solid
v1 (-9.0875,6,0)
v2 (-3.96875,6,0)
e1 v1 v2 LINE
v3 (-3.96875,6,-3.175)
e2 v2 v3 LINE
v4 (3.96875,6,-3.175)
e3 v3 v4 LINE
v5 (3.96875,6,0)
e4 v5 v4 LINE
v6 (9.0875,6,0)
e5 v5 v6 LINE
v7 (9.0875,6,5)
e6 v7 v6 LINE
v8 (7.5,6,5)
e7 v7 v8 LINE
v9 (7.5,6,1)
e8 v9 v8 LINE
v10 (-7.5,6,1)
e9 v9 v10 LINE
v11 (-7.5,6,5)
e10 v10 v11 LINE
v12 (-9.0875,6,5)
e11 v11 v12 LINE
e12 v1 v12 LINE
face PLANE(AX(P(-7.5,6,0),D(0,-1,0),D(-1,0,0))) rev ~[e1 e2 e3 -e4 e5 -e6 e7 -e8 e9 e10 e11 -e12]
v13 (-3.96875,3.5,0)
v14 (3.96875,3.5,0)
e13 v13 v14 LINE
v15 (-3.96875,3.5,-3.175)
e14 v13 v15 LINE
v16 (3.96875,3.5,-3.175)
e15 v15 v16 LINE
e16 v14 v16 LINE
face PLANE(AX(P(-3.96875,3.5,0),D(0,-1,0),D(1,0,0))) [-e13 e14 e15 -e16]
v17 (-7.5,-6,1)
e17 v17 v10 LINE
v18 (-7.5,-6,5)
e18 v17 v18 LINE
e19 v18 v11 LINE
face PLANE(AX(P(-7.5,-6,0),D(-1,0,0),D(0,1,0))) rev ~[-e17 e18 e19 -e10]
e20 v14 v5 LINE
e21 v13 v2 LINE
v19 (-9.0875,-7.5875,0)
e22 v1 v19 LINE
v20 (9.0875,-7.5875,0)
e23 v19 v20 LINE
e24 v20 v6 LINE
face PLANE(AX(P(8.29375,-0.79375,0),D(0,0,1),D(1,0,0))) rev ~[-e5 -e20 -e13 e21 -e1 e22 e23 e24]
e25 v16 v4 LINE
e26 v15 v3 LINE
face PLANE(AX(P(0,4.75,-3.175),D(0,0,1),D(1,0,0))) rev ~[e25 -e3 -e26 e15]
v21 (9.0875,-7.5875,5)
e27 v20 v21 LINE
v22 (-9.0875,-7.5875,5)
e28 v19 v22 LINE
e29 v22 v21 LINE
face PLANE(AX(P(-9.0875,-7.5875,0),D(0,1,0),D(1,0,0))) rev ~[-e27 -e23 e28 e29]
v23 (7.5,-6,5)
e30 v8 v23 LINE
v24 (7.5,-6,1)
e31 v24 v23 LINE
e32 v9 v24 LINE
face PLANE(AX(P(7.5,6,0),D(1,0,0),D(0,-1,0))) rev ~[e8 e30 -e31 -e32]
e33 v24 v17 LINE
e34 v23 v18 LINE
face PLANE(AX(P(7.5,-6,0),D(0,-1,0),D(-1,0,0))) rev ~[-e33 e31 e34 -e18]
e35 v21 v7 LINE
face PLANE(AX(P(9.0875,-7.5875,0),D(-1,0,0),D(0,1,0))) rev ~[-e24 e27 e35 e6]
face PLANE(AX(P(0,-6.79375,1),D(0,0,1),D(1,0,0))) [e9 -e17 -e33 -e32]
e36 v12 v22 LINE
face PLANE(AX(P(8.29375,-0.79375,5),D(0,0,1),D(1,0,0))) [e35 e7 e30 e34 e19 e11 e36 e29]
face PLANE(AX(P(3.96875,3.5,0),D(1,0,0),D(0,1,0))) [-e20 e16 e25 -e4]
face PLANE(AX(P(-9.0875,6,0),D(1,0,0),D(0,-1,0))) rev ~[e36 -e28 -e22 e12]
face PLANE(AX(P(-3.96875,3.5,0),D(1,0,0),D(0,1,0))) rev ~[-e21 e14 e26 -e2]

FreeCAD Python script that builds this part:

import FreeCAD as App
import Part
import Sketcher

V = App.Vector
Q = App.Units.Quantity


def add_polygon(sketch, points):
    """Adds a closed chain of lines whose ends are joined by coincident constraints."""
    first, n = sketch.GeometryCount, len(points)
    for a, b in zip(points, points[1:] + points[:1]):
        sketch.addGeometry(Part.LineSegment(App.Vector(*a, 0), App.Vector(*b, 0)), False)
    for i in range(n):
        sketch.addConstraint(Sketcher.Constraint("Coincident", first + i, 2, first + (i + 1) % n, 1))

doc = App.newDocument("Part")
body = doc.addObject("PartDesign::Body", "Body")

sketch1 = doc.addObject("Sketcher::SketchObject", "Sketch")
body.addObject(sketch1)
sketch1.AttachmentSupport = (doc.XY_Plane, [""])
sketch1.MapMode = "FlatFace"
add_polygon(sketch1, [(7.5, 6), (7.5, -6), (-7.5, -6), (-7.5, 6), (-9.1, 6), (-9.1, -7.6), (9.1, -7.6), (9.1, 6)])
sketch1.addConstraint(Sketcher.Constraint("Vertical", 0))
sketch1.addConstraint(Sketcher.Constraint("Horizontal", 1))
sketch1.addConstraint(Sketcher.Constraint("Vertical", 2))
sketch1.addConstraint(Sketcher.Constraint("Horizontal", 3))
sketch1.addConstraint(Sketcher.Constraint("Vertical", 4))
sketch1.addConstraint(Sketcher.Constraint("Horizontal", 5))
sketch1.addConstraint(Sketcher.Constraint("Vertical", 6))
sketch1.addConstraint(Sketcher.Constraint("Horizontal", 7))
sketch1.addConstraint(Sketcher.Constraint("Symmetric", 0, 2, 2, 2, -1, 1))
sketch1.addConstraint(Sketcher.Constraint("Symmetric", 3, 2, 6, 2, -2))
sketch1.addConstraint(Sketcher.Constraint("DistanceX", 1, 2, 1, 1, Q("15 mm")))
sketch1.addConstraint(Sketcher.Constraint("DistanceY", 0, 2, 0, 1, Q("12 mm")))
sketch1.addConstraint(Sketcher.Constraint("DistanceX", 5, 1, 5, 2, Q("18.175 mm")))
sketch1.addConstraint(Sketcher.Constraint("DistanceY", 4, 2, 4, 1, Q("13.5875 mm")))
pad1 = doc.addObject("PartDesign::Pad", "Pad")
body.addObject(pad1)
pad1.Profile = sketch1
pad1.Length = 5

sketch2 = doc.addObject("Sketcher::SketchObject", "Sketch001")
body.addObject(sketch2)
sketch2.AttachmentSupport = (doc.XY_Plane, [""])
sketch2.MapMode = "FlatFace"
add_polygon(sketch2, [(-9, 6), (-9, -8), (9, -8), (9, 6)])
sketch2.addConstraint(Sketcher.Constraint("Vertical", 0))
sketch2.addConstraint(Sketcher.Constraint("Horizontal", 1))
sketch2.addConstraint(Sketcher.Constraint("Vertical", 2))
sketch2.addConstraint(Sketcher.Constraint("Horizontal", 3))
sketch2.addConstraint(Sketcher.Constraint("DistanceY", -1, 1, 2, 2, Q("6 mm")))
sketch2.addConstraint(Sketcher.Constraint("DistanceX", 1, 1, 1, 2, Q("18.175 mm")))
sketch2.addConstraint(Sketcher.Constraint("DistanceY", 0, 2, 0, 1, Q("13.5875 mm")))
sketch2.addConstraint(Sketcher.Constraint("DistanceX", 0, 2, -1, 1, Q("9.0875 mm")))
pad2 = doc.addObject("PartDesign::Pad", "Pad001")
body.addObject(pad2)
pad2.Profile = sketch2
pad2.Length = 1

sketch3 = doc.addObject("Sketcher::SketchObject", "Sketch002")
body.addObject(sketch3)
sketch3.AttachmentSupport = (doc.XY_Plane, [""])
sketch3.MapMode = "FlatFace"
add_polygon(sketch3, [(-4, 6), (-4, 3.5), (4, 3.5), (4, 6)])
sketch3.addConstraint(Sketcher.Constraint("Vertical", 0))
sketch3.addConstraint(Sketcher.Constraint("Horizontal", 1))
sketch3.addConstraint(Sketcher.Constraint("Vertical", 2))
sketch3.addConstraint(Sketcher.Constraint("Horizontal", 3))
sketch3.addConstraint(Sketcher.Constraint("DistanceY", 0, 2, 0, 1, Q("2.5 mm")))
sketch3.addConstraint(Sketcher.Constraint("DistanceY", -1, 1, 2, 2, Q("6 mm")))
sketch3.addConstraint(Sketcher.Constraint("DistanceX", 1, 1, 1, 2, Q("7.9375 mm")))
sketch3.addConstraint(Sketcher.Constraint("DistanceX", 0, 2, -1, 1, Q("3.96875 mm")))
pad3 = doc.addObject("PartDesign::Pad", "Pad002")
body.addObject(pad3)
pad3.Profile = sketch3
pad3.Length = 3.175
pad3.Reversed = True

doc.recompute()
